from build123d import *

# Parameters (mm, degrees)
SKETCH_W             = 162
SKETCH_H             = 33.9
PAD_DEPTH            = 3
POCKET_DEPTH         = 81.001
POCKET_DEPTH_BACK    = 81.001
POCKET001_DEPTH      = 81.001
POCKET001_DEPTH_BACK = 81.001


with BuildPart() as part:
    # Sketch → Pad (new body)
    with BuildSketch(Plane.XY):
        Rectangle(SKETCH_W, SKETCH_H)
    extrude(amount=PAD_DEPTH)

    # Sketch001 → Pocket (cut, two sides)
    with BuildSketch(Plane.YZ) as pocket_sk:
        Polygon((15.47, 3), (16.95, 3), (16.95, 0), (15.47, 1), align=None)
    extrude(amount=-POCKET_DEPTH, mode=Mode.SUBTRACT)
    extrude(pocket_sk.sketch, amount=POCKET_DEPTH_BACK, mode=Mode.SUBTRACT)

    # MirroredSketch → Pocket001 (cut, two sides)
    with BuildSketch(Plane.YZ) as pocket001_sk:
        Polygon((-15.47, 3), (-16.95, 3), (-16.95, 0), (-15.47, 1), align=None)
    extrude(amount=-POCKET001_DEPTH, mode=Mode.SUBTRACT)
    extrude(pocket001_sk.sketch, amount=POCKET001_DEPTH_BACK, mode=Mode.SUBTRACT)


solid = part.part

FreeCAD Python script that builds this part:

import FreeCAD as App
import Part
import Sketcher

V = App.Vector
Q = App.Units.Quantity

doc = App.newDocument("Part")
body = doc.addObject("PartDesign::Body", "Body")

sketch1 = body.newObject("Sketcher::SketchObject", "Sketch")
sketch1.AttachmentSupport = (doc.getObject("XY_Plane"), [""])
sketch1.MapMode = "FlatFace"
sketch1.addGeometry(Part.LineSegment(V(-81, 17, 0), V(-81, -17, 0)), False)
sketch1.addGeometry(Part.LineSegment(V(-81, -17, 0), V(81, -17, 0)), False)
sketch1.addGeometry(Part.LineSegment(V(81, -17, 0), V(81, 17, 0)), False)
sketch1.addGeometry(Part.LineSegment(V(81, 17, 0), V(-81, 17, 0)), False)
sketch1.addConstraint(Sketcher.Constraint("Coincident", 0, 2, 1, 1))
sketch1.addConstraint(Sketcher.Constraint("Coincident", 1, 2, 2, 1))
sketch1.addConstraint(Sketcher.Constraint("Coincident", 2, 2, 3, 1))
sketch1.addConstraint(Sketcher.Constraint("Coincident", 3, 2, 0, 1))
sketch1.addConstraint(Sketcher.Constraint("Vertical", 0))
sketch1.addConstraint(Sketcher.Constraint("Horizontal", 1))
sketch1.addConstraint(Sketcher.Constraint("Vertical", 2))
sketch1.addConstraint(Sketcher.Constraint("Horizontal", 3))
sketch1.addConstraint(Sketcher.Constraint("Symmetric", 0, 2, 2, 2, -1, 1))
sketch1.addConstraint(Sketcher.Constraint("DistanceX", 1, 1, 1, 2, Q("162 mm")))
sketch1.addConstraint(Sketcher.Constraint("DistanceY", 0, 2, 0, 1, Q("33.9 mm")))
pad1 = body.newObject("PartDesign::Pad", "Pad")
pad1.Profile = sketch1
pad1.Length = 3

sketch2 = body.newObject("Sketcher::SketchObject", "Sketch001")
sketch2.AttachmentSupport = (doc.getObject("YZ_Plane"), [""])
sketch2.MapMode = "FlatFace"
sketch2.addGeometry(Part.LineSegment(V(16.9, 3, 0), V(15.5, 3, 0)), False)
sketch2.addGeometry(Part.LineSegment(V(15.5, 3, 0), V(15.5, 1, 0)), False)
sketch2.addGeometry(Part.LineSegment(V(15.5, 1, 0), V(16.9, 0, 0)), False)
sketch2.addGeometry(Part.LineSegment(V(16.9, 0, 0), V(16.9, 3, 0)), False)
sketch2.addConstraint(Sketcher.Constraint("Coincident", 0, 2, 1, 1))
sketch2.addConstraint(Sketcher.Constraint("Coincident", 1, 2, 2, 1))
sketch2.addConstraint(Sketcher.Constraint("Coincident", 2, 2, 3, 1))
sketch2.addConstraint(Sketcher.Constraint("Coincident", 3, 2, 0, 1))
sketch2.addConstraint(Sketcher.Constraint("Horizontal", 0))
sketch2.addConstraint(Sketcher.Constraint("Vertical", 1))
sketch2.addConstraint(Sketcher.Constraint("Vertical", 3))
sketch2.addConstraint(Sketcher.Constraint("PointOnObject", 2, 2, -1))
sketch2.addConstraint(Sketcher.Constraint("DistanceY", 1, 2, 1, 1, Q("2 mm")))
sketch2.addConstraint(Sketcher.Constraint("DistanceY", 3, 1, 3, 2, Q("3 mm")))
sketch2.addConstraint(Sketcher.Constraint("DistanceX", 0, 2, 0, 1, Q("1.48 mm")))
sketch2.addConstraint(Sketcher.Constraint("DistanceX", -1, 1, 0, 2, Q("15.47 mm")))
pocket1 = body.newObject("PartDesign::Pocket", "Pocket")
pocket1.Profile = sketch2
pocket1.Type = "ThroughAll"
pocket1.Midplane = True

sketch3 = body.newObject("Sketcher::SketchObject", "Sketch002")
sketch3.AttachmentSupport = (doc.getObject("YZ_Plane"), [""])
sketch3.MapMode = "FlatFace"
sketch3.addGeometry(Part.LineSegment(V(-15.5, 3, 0), V(-16.9, 3, 0)), False)
sketch3.addGeometry(Part.LineSegment(V(-16.9, 3, 0), V(-16.9, 0, 0)), False)
sketch3.addGeometry(Part.LineSegment(V(-16.9, 0, 0), V(-15.5, 1, 0)), False)
sketch3.addGeometry(Part.LineSegment(V(-15.5, 1, 0), V(-15.5, 3, 0)), False)
sketch3.addConstraint(Sketcher.Constraint("Coincident", 0, 2, 1, 1))
sketch3.addConstraint(Sketcher.Constraint("Coincident", 1, 2, 2, 1))
sketch3.addConstraint(Sketcher.Constraint("Coincident", 2, 2, 3, 1))
sketch3.addConstraint(Sketcher.Constraint("Coincident", 3, 2, 0, 1))
sketch3.addConstraint(Sketcher.Constraint("Horizontal", 0))
sketch3.addConstraint(Sketcher.Constraint("Vertical", 1))
sketch3.addConstraint(Sketcher.Constraint("Vertical", 3))
sketch3.addConstraint(Sketcher.Constraint("PointOnObject", 1, 2, -1))
sketch3.addConstraint(Sketcher.Constraint("DistanceY", 1, 2, 1, 1, Q("3 mm")))
sketch3.addConstraint(Sketcher.Constraint("DistanceY", 3, 1, 3, 2, Q("2 mm")))
sketch3.addConstraint(Sketcher.Constraint("DistanceX", 0, 2, 0, 1, Q("1.48 mm")))
sketch3.addConstraint(Sketcher.Constraint("DistanceX", 0, 2, -1, 1, Q("16.95 mm")))
pocket2 = body.newObject("PartDesign::Pocket", "Pocket001")
pocket2.Profile = sketch3
pocket2.Type = "ThroughAll"
pocket2.Midplane = True

doc.recompute()
